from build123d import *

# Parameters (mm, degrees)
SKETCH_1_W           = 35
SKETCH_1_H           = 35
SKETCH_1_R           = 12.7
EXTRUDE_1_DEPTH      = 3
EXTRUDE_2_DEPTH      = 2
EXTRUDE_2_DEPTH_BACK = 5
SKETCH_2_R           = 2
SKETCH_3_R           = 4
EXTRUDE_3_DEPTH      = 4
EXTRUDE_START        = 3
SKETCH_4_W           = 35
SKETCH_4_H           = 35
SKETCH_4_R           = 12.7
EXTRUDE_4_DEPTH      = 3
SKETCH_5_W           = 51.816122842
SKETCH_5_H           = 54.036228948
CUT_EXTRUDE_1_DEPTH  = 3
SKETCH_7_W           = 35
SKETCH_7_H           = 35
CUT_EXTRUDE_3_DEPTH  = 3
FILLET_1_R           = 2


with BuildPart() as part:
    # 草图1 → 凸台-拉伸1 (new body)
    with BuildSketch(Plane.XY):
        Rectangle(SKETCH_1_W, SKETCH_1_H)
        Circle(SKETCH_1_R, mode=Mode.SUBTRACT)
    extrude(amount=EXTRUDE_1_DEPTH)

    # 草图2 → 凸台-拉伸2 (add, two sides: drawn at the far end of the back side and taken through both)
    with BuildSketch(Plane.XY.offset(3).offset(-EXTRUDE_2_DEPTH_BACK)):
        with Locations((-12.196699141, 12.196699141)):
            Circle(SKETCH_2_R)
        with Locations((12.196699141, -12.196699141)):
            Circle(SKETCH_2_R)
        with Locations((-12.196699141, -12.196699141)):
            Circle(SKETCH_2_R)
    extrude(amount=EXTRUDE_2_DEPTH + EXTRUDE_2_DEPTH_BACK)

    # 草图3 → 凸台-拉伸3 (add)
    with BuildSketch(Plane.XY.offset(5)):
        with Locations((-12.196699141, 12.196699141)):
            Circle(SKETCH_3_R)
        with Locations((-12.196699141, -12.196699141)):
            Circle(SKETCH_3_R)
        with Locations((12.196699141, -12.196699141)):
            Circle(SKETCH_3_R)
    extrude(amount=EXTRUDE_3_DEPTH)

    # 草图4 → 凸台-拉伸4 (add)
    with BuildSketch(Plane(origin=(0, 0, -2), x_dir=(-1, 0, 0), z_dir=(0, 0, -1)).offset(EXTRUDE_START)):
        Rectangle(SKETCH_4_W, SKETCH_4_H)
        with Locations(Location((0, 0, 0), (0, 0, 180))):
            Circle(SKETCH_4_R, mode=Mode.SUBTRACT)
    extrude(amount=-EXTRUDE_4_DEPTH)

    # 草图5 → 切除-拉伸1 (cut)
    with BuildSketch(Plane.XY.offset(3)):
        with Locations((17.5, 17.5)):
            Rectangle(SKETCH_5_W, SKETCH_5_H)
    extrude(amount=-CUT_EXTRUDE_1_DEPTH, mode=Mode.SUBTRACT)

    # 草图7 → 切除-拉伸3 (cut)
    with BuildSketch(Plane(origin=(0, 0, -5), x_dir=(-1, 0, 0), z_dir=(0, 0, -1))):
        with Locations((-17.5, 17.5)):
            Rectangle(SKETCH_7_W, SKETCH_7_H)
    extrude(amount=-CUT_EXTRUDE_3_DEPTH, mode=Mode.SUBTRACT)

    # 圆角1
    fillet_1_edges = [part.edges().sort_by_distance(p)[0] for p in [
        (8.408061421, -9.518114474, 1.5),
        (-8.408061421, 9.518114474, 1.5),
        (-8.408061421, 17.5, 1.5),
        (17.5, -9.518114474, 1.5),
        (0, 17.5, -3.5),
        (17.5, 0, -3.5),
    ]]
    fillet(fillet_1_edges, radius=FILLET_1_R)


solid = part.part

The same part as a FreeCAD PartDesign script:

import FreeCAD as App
import Part
import Sketcher
Q = App.Units.Quantity


def edges_at(feature, points):
    """Names of the edges that pass closest to the given points."""
    edges = feature.Shape.Edges
    near = lambda p: min(range(len(edges)), key=lambda i: edges[i].distToShape(Part.Vertex(*p))[0])
    return sorted({f"Edge{near(p) + 1}" for p in points})

doc = App.newDocument("Part")
body = doc.addObject("PartDesign::Body", "Body")

sketch1 = body.newObject("Sketcher::SketchObject", "Sketch")
sketch1.AttachmentSupport = (doc.getObject("XY_Plane"), [""])
sketch1.MapMode = "FlatFace"
sketch1.addGeometry(Part.LineSegment(App.Vector(-18, 18, 0), App.Vector(-18, -18, 0)), False)
sketch1.addGeometry(Part.LineSegment(App.Vector(-18, -18, 0), App.Vector(18, -18, 0)), False)
sketch1.addGeometry(Part.LineSegment(App.Vector(18, -18, 0), App.Vector(18, 18, 0)), False)
sketch1.addGeometry(Part.LineSegment(App.Vector(18, 18, 0), App.Vector(-18, 18, 0)), False)
sketch1.addGeometry(Part.Circle(App.Vector(0, 0, 0), App.Vector(0, 0, 1), 13), False)
sketch1.addConstraint(Sketcher.Constraint("Coincident", 0, 2, 1, 1))
sketch1.addConstraint(Sketcher.Constraint("Coincident", 1, 2, 2, 1))
sketch1.addConstraint(Sketcher.Constraint("Coincident", 2, 2, 3, 1))
sketch1.addConstraint(Sketcher.Constraint("Coincident", 3, 2, 0, 1))
sketch1.addConstraint(Sketcher.Constraint("Vertical", 0))
sketch1.addConstraint(Sketcher.Constraint("Horizontal", 1))
sketch1.addConstraint(Sketcher.Constraint("Vertical", 2))
sketch1.addConstraint(Sketcher.Constraint("Horizontal", 3))
sketch1.addConstraint(Sketcher.Constraint("Coincident", 4, 3, -1, 1))
sketch1.addConstraint(Sketcher.Constraint("Symmetric", 0, 2, 2, 2, -1, 1))
sketch1.addConstraint(Sketcher.Constraint("Equal", 3, 0))
sketch1.addConstraint(Sketcher.Constraint("Diameter", 4, Q("25.4 mm")))
sketch1.addConstraint(Sketcher.Constraint("DistanceX", 1, 1, 1, 2, Q("35 mm")))
pad1 = body.newObject("PartDesign::Pad", "Pad")
pad1.Profile = sketch1
pad1.Length = 3

sketch2 = body.newObject("Sketcher::SketchObject", "Sketch001")
sketch2.AttachmentSupport = (doc.getObject("XY_Plane"), [""])
sketch2.MapMode = "FlatFace"
sketch2.AttachmentOffset = App.Placement(App.Vector(0, 0, 3), App.Rotation())
sketch2.addGeometry(Part.Circle(App.Vector(-12.2, 12.2, 0), App.Vector(0, 0, 1), 2), False)
sketch2.addGeometry(Part.Circle(App.Vector(12.2, -12.2, 0), App.Vector(0, 0, 1), 2), False)
sketch2.addGeometry(Part.Circle(App.Vector(-12.2, -12.2, 0), App.Vector(0, 0, 1), 2), False)
sketch2.addConstraint(Sketcher.Constraint("Equal", 0, 1))
sketch2.addConstraint(Sketcher.Constraint("Equal", 1, 2))
sketch2.addConstraint(Sketcher.Constraint("Symmetric", 0, 3, 1, 3, -1, 1))
sketch2.addConstraint(Sketcher.Constraint("Symmetric", 1, 3, 2, 3, -2))
sketch2.addConstraint(Sketcher.Constraint("Diameter", 0, Q("4 mm")))
sketch2.addConstraint(Sketcher.Constraint("DistanceX", 0, 3, -1, 1, Q("12.196699 mm")))
sketch2.addConstraint(Sketcher.Constraint("DistanceY", -1, 1, 0, 3, Q("12.196699 mm")))
pad2 = body.newObject("PartDesign::Pad", "Pad001")
pad2.Profile = sketch2
pad2.Type = "TwoLengths"
pad2.Length = 2
pad2.Length2 = 5

sketch3 = body.newObject("Sketcher::SketchObject", "Sketch002")
sketch3.AttachmentSupport = (doc.getObject("XY_Plane"), [""])
sketch3.MapMode = "FlatFace"
sketch3.AttachmentOffset = App.Placement(App.Vector(0, 0, 5), App.Rotation())
sketch3.addGeometry(Part.Circle(App.Vector(-12.2, 12.2, 0), App.Vector(0, 0, 1), 4), False)
sketch3.addGeometry(Part.Circle(App.Vector(-12.2, -12.2, 0), App.Vector(0, 0, 1), 4), False)
sketch3.addGeometry(Part.Circle(App.Vector(12.2, -12.2, 0), App.Vector(0, 0, 1), 4), False)
sketch3.addConstraint(Sketcher.Constraint("Equal", 0, 1))
sketch3.addConstraint(Sketcher.Constraint("Equal", 1, 2))
sketch3.addConstraint(Sketcher.Constraint("Symmetric", 0, 3, 2, 3, -1, 1))
sketch3.addConstraint(Sketcher.Constraint("Symmetric", 1, 3, 2, 3, -2))
sketch3.addConstraint(Sketcher.Constraint("Diameter", 0, Q("8 mm")))
sketch3.addConstraint(Sketcher.Constraint("DistanceX", 0, 3, -1, 1, Q("12.196699 mm")))
sketch3.addConstraint(Sketcher.Constraint("DistanceY", -1, 1, 0, 3, Q("12.196699 mm")))
pad3 = body.newObject("PartDesign::Pad", "Pad002")
pad3.Profile = sketch3
pad3.Length = 4

sketch4 = body.newObject("Sketcher::SketchObject", "Sketch003")
sketch4.AttachmentSupport = (doc.getObject("XY_Plane"), [""])
sketch4.MapMode = "FlatFace"
sketch4.AttachmentOffset = App.Placement(App.Vector(0, 0, -5), App.Rotation())
sketch4.addGeometry(Part.LineSegment(App.Vector(18, 18, 0), App.Vector(18, -18, 0)), False)
sketch4.addGeometry(Part.LineSegment(App.Vector(18, -18, 0), App.Vector(-18, -18, 0)), False)
sketch4.addGeometry(Part.LineSegment(App.Vector(-18, -18, 0), App.Vector(-18, 18, 0)), False)
sketch4.addGeometry(Part.LineSegment(App.Vector(-18, 18, 0), App.Vector(18, 18, 0)), False)
sketch4.addGeometry(Part.Circle(App.Vector(0, 0, 0), App.Vector(0, 0, 1), 13), False)
sketch4.addConstraint(Sketcher.Constraint("Coincident", 0, 2, 1, 1))
sketch4.addConstraint(Sketcher.Constraint("Coincident", 1, 2, 2, 1))
sketch4.addConstraint(Sketcher.Constraint("Coincident", 2, 2, 3, 1))
sketch4.addConstraint(Sketcher.Constraint("Coincident", 3, 2, 0, 1))
sketch4.addConstraint(Sketcher.Constraint("Vertical", 0))
sketch4.addConstraint(Sketcher.Constraint("Horizontal", 1))
sketch4.addConstraint(Sketcher.Constraint("Vertical", 2))
sketch4.addConstraint(Sketcher.Constraint("Horizontal", 3))
sketch4.addConstraint(Sketcher.Constraint("Coincident", 4, 3, -1, 1))
sketch4.addConstraint(Sketcher.Constraint("Symmetric", 0, 2, 2, 2, -1, 1))
sketch4.addConstraint(Sketcher.Constraint("Equal", 3, 0))
sketch4.addConstraint(Sketcher.Constraint("Diameter", 4, Q("25.4 mm")))
sketch4.addConstraint(Sketcher.Constraint("DistanceX", 1, 2, 1, 1, Q("35 mm")))
pad4 = body.newObject("PartDesign::Pad", "Pad003")
pad4.Profile = sketch4
pad4.Length = 3

sketch5 = body.newObject("Sketcher::SketchObject", "Sketch004")
sketch5.AttachmentSupport = (doc.getObject("XY_Plane"), [""])
sketch5.MapMode = "FlatFace"
sketch5.AttachmentOffset = App.Placement(App.Vector(0, 0, 3), App.Rotation())
sketch5.addGeometry(Part.LineSegment(App.Vector(-8, 45, 0), App.Vector(-8, -10, 0)), False)
sketch5.addGeometry(Part.LineSegment(App.Vector(-8, -10, 0), App.Vector(43, -10, 0)), False)
sketch5.addGeometry(Part.LineSegment(App.Vector(43, -10, 0), App.Vector(43, 45, 0)), False)
sketch5.addGeometry(Part.LineSegment(App.Vector(43, 45, 0), App.Vector(-8, 45, 0)), False)
sketch5.addConstraint(Sketcher.Constraint("Coincident", 0, 2, 1, 1))
sketch5.addConstraint(Sketcher.Constraint("Coincident", 1, 2, 2, 1))
sketch5.addConstraint(Sketcher.Constraint("Coincident", 2, 2, 3, 1))
sketch5.addConstraint(Sketcher.Constraint("Coincident", 3, 2, 0, 1))
sketch5.addConstraint(Sketcher.Constraint("Vertical", 0))
sketch5.addConstraint(Sketcher.Constraint("Horizontal", 1))
sketch5.addConstraint(Sketcher.Constraint("Vertical", 2))
sketch5.addConstraint(Sketcher.Constraint("Horizontal", 3))
sketch5.addConstraint(Sketcher.Constraint("DistanceY", 0, 2, 0, 1, Q("54.036229 mm")))
sketch5.addConstraint(Sketcher.Constraint("DistanceX", 1, 1, 1, 2, Q("51.816123 mm")))
sketch5.addConstraint(Sketcher.Constraint("DistanceX", 0, 2, -1, 1, Q("8.408061 mm")))
sketch5.addConstraint(Sketcher.Constraint("DistanceY", 0, 2, -1, 1, Q("9.518114 mm")))
pocket1 = body.newObject("PartDesign::Pocket", "Pocket")
pocket1.Profile = sketch5
pocket1.Length = 3

sketch6 = body.newObject("Sketcher::SketchObject", "Sketch005")
sketch6.AttachmentSupport = (doc.getObject("XY_Plane"), [""])
sketch6.MapMode = "FlatFace"
sketch6.AttachmentOffset = App.Placement(App.Vector(0, 0, -5), App.Rotation())
sketch6.addGeometry(Part.LineSegment(App.Vector(35, 35, 0), App.Vector(35, 0, 0)), False)
sketch6.addGeometry(Part.LineSegment(App.Vector(35, 0, 0), App.Vector(0, 0, 0)), False)
sketch6.addGeometry(Part.LineSegment(App.Vector(0, 0, 0), App.Vector(0, 35, 0)), False)
sketch6.addGeometry(Part.LineSegment(App.Vector(0, 35, 0), App.Vector(35, 35, 0)), False)
sketch6.addConstraint(Sketcher.Constraint("Coincident", 0, 2, 1, 1))
sketch6.addConstraint(Sketcher.Constraint("Coincident", 1, 2, 2, 1))
sketch6.addConstraint(Sketcher.Constraint("Coincident", 2, 2, 3, 1))
sketch6.addConstraint(Sketcher.Constraint("Coincident", 3, 2, 0, 1))
sketch6.addConstraint(Sketcher.Constraint("Vertical", 0))
sketch6.addConstraint(Sketcher.Constraint("Horizontal", 1))
sketch6.addConstraint(Sketcher.Constraint("Vertical", 2))
sketch6.addConstraint(Sketcher.Constraint("Horizontal", 3))
sketch6.addConstraint(Sketcher.Constraint("Coincident", 1, 2, -1, 1))
sketch6.addConstraint(Sketcher.Constraint("Equal", 3, 0))
sketch6.addConstraint(Sketcher.Constraint("DistanceX", 1, 2, 1, 1, Q("35 mm")))
pocket2 = body.newObject("PartDesign::Pocket", "Pocket001")
pocket2.Profile = sketch6
pocket2.Length = 3
pocket2.Reversed = True
doc.recompute()

fillet = body.newObject("PartDesign::Fillet", "Fillet")
fillet.Base = (pocket2, edges_at(pocket2, [
    (8.408, -9.518, 1.5),
    (-8.408, 9.518, 1.5),
    (-8.408, 17.5, 1.5),
    (17.5, -9.518, 1.5),
    (0, 17.5, -3.5),
    (17.5, 0, -3.5),
]))
fillet.Radius = 2

doc.recompute()
